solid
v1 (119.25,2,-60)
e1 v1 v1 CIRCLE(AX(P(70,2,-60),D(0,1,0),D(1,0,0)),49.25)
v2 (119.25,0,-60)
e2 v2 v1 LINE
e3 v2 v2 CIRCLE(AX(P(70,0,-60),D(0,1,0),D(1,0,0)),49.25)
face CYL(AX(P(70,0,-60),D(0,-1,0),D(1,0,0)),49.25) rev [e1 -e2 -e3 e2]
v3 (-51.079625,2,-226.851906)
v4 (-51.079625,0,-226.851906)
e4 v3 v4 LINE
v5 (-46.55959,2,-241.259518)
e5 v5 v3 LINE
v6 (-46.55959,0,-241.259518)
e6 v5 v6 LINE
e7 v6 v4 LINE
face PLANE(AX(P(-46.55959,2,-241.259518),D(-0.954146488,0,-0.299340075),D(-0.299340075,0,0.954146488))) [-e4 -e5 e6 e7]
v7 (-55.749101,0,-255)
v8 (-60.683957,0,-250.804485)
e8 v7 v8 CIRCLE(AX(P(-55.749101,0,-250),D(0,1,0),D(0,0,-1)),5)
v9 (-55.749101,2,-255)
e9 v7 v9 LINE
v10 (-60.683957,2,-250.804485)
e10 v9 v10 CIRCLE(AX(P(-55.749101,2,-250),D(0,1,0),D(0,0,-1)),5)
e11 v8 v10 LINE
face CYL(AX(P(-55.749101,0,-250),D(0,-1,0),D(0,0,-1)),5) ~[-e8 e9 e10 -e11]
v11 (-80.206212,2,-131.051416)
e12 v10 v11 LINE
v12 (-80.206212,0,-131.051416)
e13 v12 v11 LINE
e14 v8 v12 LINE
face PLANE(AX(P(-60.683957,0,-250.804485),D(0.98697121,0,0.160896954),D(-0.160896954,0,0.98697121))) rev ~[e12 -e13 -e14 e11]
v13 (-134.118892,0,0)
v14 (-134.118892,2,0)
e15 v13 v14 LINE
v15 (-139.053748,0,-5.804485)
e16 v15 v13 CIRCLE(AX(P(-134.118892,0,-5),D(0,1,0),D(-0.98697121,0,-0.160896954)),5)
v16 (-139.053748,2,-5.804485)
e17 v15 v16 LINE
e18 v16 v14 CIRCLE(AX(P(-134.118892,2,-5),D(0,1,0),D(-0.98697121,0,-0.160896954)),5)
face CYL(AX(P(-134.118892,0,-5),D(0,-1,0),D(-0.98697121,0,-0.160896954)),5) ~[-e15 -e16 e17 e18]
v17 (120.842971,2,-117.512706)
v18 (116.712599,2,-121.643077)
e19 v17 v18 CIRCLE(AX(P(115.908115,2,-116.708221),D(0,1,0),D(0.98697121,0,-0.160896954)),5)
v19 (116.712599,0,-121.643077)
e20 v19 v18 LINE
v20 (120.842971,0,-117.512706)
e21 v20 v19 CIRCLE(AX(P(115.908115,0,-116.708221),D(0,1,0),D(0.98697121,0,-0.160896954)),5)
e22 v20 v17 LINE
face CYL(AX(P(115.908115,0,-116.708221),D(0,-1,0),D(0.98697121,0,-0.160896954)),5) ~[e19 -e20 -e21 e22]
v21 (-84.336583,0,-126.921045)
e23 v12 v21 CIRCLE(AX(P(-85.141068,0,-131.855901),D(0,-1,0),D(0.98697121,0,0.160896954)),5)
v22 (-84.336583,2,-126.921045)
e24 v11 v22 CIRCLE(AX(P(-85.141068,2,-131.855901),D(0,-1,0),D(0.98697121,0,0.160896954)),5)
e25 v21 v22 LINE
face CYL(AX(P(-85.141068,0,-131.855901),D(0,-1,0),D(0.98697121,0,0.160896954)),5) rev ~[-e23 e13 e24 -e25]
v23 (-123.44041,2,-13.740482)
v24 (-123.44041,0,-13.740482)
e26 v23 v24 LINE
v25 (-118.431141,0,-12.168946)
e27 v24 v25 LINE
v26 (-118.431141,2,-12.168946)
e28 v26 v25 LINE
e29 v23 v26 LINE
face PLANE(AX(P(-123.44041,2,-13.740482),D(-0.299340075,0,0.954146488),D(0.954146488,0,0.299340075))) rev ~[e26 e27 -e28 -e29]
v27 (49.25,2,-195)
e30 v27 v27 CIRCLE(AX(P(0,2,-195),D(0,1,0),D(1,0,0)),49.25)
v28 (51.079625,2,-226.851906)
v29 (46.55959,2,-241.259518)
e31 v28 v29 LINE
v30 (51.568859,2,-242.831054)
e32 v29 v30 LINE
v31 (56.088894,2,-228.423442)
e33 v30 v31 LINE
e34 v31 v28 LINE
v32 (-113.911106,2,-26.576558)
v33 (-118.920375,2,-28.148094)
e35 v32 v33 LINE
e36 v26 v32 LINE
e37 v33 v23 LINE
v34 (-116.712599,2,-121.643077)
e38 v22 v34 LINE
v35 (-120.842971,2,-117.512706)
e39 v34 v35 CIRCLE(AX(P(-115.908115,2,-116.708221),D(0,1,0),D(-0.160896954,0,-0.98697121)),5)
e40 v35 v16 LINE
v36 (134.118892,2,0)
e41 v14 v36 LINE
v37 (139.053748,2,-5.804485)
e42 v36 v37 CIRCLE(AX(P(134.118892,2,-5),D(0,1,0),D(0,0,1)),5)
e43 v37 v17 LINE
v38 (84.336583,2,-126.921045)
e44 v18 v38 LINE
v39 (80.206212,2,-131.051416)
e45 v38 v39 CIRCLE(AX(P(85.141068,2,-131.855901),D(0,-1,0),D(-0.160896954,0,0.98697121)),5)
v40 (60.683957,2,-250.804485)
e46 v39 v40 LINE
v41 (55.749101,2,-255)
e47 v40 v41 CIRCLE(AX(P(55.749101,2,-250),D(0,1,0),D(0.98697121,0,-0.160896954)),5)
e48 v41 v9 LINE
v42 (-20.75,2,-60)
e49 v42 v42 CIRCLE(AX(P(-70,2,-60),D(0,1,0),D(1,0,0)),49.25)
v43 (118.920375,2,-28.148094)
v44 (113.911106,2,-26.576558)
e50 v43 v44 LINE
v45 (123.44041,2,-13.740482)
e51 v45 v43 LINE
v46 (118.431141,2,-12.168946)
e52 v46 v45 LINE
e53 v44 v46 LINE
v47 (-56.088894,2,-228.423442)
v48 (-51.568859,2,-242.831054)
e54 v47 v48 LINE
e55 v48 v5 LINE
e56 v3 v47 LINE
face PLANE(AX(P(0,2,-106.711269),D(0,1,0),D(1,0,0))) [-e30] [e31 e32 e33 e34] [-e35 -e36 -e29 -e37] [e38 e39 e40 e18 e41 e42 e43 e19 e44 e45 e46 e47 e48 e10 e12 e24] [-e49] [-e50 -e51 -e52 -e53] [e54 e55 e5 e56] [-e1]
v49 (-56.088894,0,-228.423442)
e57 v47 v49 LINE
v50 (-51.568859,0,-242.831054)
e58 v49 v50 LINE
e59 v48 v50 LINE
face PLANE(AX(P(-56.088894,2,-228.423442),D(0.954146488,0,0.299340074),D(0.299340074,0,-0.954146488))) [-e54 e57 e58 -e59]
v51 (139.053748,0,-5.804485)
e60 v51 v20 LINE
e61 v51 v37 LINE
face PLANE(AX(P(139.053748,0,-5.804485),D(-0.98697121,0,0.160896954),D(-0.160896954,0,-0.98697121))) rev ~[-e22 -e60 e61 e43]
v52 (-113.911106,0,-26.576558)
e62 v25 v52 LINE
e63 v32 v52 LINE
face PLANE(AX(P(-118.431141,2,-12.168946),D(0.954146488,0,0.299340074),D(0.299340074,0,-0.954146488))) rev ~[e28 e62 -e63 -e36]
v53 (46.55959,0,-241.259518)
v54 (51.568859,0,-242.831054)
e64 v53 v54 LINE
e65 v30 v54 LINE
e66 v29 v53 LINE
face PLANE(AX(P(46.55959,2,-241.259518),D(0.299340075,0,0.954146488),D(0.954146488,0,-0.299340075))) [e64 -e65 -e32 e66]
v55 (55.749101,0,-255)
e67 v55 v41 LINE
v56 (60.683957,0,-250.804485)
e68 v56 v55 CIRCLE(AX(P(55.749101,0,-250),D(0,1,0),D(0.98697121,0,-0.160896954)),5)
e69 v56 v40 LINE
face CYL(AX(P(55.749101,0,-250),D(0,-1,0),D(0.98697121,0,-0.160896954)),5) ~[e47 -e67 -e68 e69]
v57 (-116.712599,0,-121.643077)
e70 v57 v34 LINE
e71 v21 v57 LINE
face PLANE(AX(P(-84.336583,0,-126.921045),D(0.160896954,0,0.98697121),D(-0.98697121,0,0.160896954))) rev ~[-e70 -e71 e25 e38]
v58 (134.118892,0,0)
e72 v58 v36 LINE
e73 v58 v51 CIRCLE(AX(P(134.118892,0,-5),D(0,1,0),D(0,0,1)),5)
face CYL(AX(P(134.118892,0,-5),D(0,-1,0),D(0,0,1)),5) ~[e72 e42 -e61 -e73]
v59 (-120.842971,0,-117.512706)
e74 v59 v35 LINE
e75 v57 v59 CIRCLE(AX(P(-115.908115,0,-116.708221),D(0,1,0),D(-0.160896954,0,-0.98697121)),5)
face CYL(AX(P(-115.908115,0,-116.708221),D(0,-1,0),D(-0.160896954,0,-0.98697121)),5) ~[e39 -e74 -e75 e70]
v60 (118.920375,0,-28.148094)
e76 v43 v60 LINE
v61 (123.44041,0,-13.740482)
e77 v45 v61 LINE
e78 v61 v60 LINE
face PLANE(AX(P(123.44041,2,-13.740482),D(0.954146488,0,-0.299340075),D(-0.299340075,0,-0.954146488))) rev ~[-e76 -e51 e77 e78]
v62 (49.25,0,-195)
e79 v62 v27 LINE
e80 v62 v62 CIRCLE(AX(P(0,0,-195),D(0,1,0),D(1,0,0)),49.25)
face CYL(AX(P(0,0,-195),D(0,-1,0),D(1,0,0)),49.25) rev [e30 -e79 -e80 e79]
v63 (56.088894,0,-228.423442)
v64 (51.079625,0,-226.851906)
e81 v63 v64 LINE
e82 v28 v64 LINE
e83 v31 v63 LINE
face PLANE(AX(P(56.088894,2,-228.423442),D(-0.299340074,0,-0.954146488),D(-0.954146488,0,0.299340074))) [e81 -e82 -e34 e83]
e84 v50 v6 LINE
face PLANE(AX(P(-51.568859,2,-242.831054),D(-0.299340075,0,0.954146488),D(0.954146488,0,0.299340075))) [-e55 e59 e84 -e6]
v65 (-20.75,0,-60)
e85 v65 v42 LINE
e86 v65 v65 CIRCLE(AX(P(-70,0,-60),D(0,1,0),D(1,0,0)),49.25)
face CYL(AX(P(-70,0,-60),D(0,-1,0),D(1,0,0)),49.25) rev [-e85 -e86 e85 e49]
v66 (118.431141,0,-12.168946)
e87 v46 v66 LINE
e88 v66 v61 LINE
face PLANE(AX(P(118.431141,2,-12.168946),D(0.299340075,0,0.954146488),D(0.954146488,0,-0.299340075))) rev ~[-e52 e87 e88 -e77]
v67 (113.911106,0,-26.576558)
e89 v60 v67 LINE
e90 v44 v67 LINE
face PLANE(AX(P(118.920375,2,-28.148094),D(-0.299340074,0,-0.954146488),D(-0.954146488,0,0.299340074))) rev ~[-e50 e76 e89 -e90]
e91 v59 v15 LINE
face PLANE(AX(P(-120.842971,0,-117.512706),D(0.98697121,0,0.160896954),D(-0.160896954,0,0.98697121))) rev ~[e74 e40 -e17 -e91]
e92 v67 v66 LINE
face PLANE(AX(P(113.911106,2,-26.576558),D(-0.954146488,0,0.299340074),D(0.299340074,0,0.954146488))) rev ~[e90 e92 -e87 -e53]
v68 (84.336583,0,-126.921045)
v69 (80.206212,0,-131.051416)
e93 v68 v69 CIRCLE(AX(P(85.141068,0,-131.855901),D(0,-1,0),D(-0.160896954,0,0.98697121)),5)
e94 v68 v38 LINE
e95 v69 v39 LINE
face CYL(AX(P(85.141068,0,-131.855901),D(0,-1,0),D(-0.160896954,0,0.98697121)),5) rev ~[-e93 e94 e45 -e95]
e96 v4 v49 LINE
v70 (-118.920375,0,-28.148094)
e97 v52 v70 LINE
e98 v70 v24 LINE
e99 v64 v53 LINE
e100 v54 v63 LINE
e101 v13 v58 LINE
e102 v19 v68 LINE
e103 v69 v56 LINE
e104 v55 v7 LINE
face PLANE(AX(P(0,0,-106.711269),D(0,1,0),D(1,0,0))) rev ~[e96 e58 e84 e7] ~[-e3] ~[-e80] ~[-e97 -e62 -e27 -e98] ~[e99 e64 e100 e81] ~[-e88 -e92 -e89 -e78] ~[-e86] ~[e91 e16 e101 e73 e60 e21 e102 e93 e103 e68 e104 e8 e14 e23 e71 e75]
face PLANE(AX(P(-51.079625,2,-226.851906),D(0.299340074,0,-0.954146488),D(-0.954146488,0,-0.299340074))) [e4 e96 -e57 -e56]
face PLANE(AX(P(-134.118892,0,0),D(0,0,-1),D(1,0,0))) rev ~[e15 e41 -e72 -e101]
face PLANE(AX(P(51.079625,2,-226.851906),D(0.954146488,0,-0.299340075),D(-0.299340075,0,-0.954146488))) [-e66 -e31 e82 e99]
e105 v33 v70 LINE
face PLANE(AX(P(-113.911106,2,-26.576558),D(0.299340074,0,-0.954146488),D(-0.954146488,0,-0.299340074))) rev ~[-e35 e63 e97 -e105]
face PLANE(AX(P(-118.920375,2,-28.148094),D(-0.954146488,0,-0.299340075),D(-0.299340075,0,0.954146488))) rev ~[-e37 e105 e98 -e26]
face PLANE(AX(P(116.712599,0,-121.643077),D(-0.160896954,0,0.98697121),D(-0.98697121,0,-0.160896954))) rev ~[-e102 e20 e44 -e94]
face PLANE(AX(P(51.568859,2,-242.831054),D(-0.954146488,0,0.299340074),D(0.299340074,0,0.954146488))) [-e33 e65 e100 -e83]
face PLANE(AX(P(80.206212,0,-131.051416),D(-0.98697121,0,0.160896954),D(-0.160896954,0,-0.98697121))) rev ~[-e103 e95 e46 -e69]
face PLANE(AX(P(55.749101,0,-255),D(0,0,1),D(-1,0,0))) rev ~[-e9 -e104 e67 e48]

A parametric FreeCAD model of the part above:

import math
import FreeCAD as App
import Part
import Sketcher

V = App.Vector


def add_polygon(sketch, points):
    """Adds a closed chain of lines whose ends are joined by coincident constraints."""
    first, n = sketch.GeometryCount, len(points)
    for a, b in zip(points, points[1:] + points[:1]):
        sketch.addGeometry(Part.LineSegment(App.Vector(*a, 0), App.Vector(*b, 0)), False)
    for i in range(n):
        sketch.addConstraint(Sketcher.Constraint("Coincident", first + i, 2, first + (i + 1) % n, 1))

doc = App.newDocument("Part")
body = doc.addObject("PartDesign::Body", "Body")

sketch1 = doc.addObject("Sketcher::SketchObject", "Sketch")
body.addObject(sketch1)
sketch1.AttachmentSupport = (doc.XZ_Plane, [""])
sketch1.MapMode = "FlatFace"
sketch1.addGeometry([
    Part.LineSegment(V(-134.1, 0, 0), V(134.1, 0, 0)),
    Part.ArcOfCircle(Part.Circle(V(134.1, -5, 0), V(0, 0, 1), 5), math.radians(-9), math.radians(90)),
    Part.LineSegment(V(139.1, -5.8, 0), V(120.8, -117.5, 0)),
    Part.ArcOfCircle(Part.Circle(V(115.9, -116.7, 0), V(0, 0, 1), 5), math.radians(-81), math.radians(-9)),
    Part.LineSegment(V(116.7, -121.6, 0), V(84.3, -126.9, 0)),
    Part.ArcOfCircle(Part.Circle(V(85.1, -131.9, 0), V(0, 0, 1), 5), math.radians(99), math.radians(171)),
    Part.LineSegment(V(80.2, -131.1, 0), V(60.7, -250.8, 0)),
    Part.ArcOfCircle(Part.Circle(V(55.7, -250, 0), V(0, 0, 1), 5), math.radians(-90), math.radians(-9)),
    Part.LineSegment(V(55.7, -255, 0), V(-55.7, -255, 0)),
    Part.ArcOfCircle(Part.Circle(V(-55.7, -250, 0), V(0, 0, 1), 5), math.radians(-171), math.radians(-90)),
    Part.LineSegment(V(-60.7, -250.8, 0), V(-80.2, -131.1, 0)),
    Part.ArcOfCircle(Part.Circle(V(-85.1, -131.9, 0), V(0, 0, 1), 5), math.radians(9), math.radians(81)),
    Part.LineSegment(V(-84.3, -126.9, 0), V(-116.7, -121.6, 0)),
    Part.ArcOfCircle(Part.Circle(V(-115.9, -116.7, 0), V(0, 0, 1), 5), math.radians(-171), math.radians(-99)),
    Part.LineSegment(V(-120.8, -117.5, 0), V(-139.1, -5.8, 0)),
    Part.ArcOfCircle(Part.Circle(V(-134.1, -5, 0), V(0, 0, 1), 5), math.radians(90), math.radians(189)),
    Part.Circle(V(-70, -60, 0), V(0, 0, 1), 49.2),
    Part.Circle(V(70, -60, 0), V(0, 0, 1), 49.2),
    Part.Circle(V(0, -195, 0), V(0, 0, 1), 49.2),
], False)
sketch1.addConstraint([
    Sketcher.Constraint("Tangent", 0, 2, 1, 2),
    Sketcher.Constraint("Tangent", 1, 1, 2, 1),
    Sketcher.Constraint("Tangent", 2, 2, 3, 2),
    Sketcher.Constraint("Tangent", 3, 1, 4, 1),
    Sketcher.Constraint("Tangent", 4, 2, 5, 1),
    Sketcher.Constraint("Tangent", 5, 2, 6, 1),
    Sketcher.Constraint("Tangent", 6, 2, 7, 2),
    Sketcher.Constraint("Tangent", 7, 1, 8, 1),
    Sketcher.Constraint("Tangent", 8, 2, 9, 2),
    Sketcher.Constraint("Tangent", 9, 1, 10, 1),
    Sketcher.Constraint("Tangent", 10, 2, 11, 1),
    Sketcher.Constraint("Tangent", 11, 2, 12, 1),
    Sketcher.Constraint("Tangent", 12, 2, 13, 2),
    Sketcher.Constraint("Tangent", 13, 1, 14, 1),
    Sketcher.Constraint("Tangent", 14, 2, 15, 2),
    Sketcher.Constraint("Tangent", 15, 1, 0, 1),
    Sketcher.Constraint("Horizontal", 0),
    Sketcher.Constraint("Horizontal", 8),
    Sketcher.Constraint("Equal", 1, 3),
    Sketcher.Constraint("Equal", 3, 5),
    Sketcher.Constraint("Equal", 5, 7),
    Sketcher.Constraint("Equal", 7, 9),
    Sketcher.Constraint("Equal", 9, 11),
    Sketcher.Constraint("Equal", 11, 13),
    Sketcher.Constraint("Equal", 13, 15),
    Sketcher.Constraint("Equal", 16, 17),
    Sketcher.Constraint("Equal", 17, 18),
    Sketcher.Constraint("Symmetric", 0, 2, 15, 1, -1, 1),
    Sketcher.Constraint("Symmetric", 5, 3, 11, 3, -2),
    Sketcher.Constraint("Symmetric", 3, 3, 13, 3, -2),
    Sketcher.Constraint("Symmetric", 16, 3, 17, 3, -2),
    Sketcher.Constraint("PointOnObject", 18, 3, -2),
    Sketcher.Constraint("Parallel", 2, 6),
    Sketcher.Constraint("Perpendicular", 4, 10),
    Sketcher.Constraint("Perpendicular", 6, 12),
    Sketcher.Constraint("Radius", 1, 5.0),
    Sketcher.Constraint("Diameter", 16, 98.5),
    Sketcher.Constraint("DistanceY", 7, 3, -1, 1, 250.0),
    Sketcher.Constraint("DistanceX", 16, 3, -1, 1, 70.0),
    Sketcher.Constraint("DistanceY", 16, 3, -1, 1, 60.0),
    Sketcher.Constraint("DistanceY", 18, 3, -1, 1, 195.0),
    Sketcher.Constraint("DistanceX", 8, 2, 8, 1, 111.498201),
    Sketcher.Constraint("DistanceY", 5, 3, -1, 1, 131.855901),
    Sketcher.Constraint("DistanceX", -1, 1, 3, 1, 116.712599),
    Sketcher.Constraint("DistanceX", 0, 1, 0, 2, 268.237783),
])
pad1 = doc.addObject("PartDesign::Pad", "Pad")
body.addObject(pad1)
pad1.Profile = sketch1
pad1.Length = 2
pad1.Reversed = True

sketch2 = doc.addObject("Sketcher::SketchObject", "Sketch001")
body.addObject(sketch2)
sketch2.AttachmentSupport = (doc.XZ_Plane, [""])
sketch2.MapMode = "FlatFace"
sketch2.AttachmentOffset = App.Placement(V(0, 0, -2), App.Rotation())
add_polygon(sketch2, [(-52, -243), (-56, -228), (-51, -227), (-47, -241)])
add_polygon(sketch2, [(-118, -12), (-114, -27), (-119, -28), (-123, -14)])
add_polygon(sketch2, [(123, -14), (119, -28), (114, -27), (118, -12)])
add_polygon(sketch2, [(47, -241), (51, -227), (56, -228), (52, -243)])
sketch2.addConstraint([
    Sketcher.Constraint("Symmetric", 5, 2, 8, 2, -2),
    Sketcher.Constraint("Symmetric", 4, 2, 9, 2, -2),
    Sketcher.Constraint("Symmetric", 7, 2, 10, 2, -2),
    Sketcher.Constraint("Symmetric", 6, 2, 11, 2, -2),
    Sketcher.Constraint("Symmetric", 1, 2, 12, 2, -2),
    Sketcher.Constraint("Symmetric", 0, 2, 13, 2, -2),
    Sketcher.Constraint("Symmetric", 3, 2, 14, 2, -2),
    Sketcher.Constraint("Symmetric", 2, 2, 15, 2, -2),
    Sketcher.Constraint("Perpendicular", 0, 1),
    Sketcher.Constraint("Perpendicular", 1, 2),
    Sketcher.Constraint("Perpendicular", 2, 3),
    Sketcher.Constraint("Perpendicular", 3, 4),
    Sketcher.Constraint("Perpendicular", 4, 5),
    Sketcher.Constraint("Perpendicular", 5, 6),
    Sketcher.Constraint("Perpendicular", 6, 7),
    Sketcher.Constraint("Equal", 2, 4),
    Sketcher.Constraint("Equal", 3, 5),
    Sketcher.Constraint("DistanceX", 1, 2, 8, 2, 170.0),
    Sketcher.Constraint("Distance", 0, 15.1),
    Sketcher.Constraint("Distance", 1, 5.25),
    Sketcher.Constraint("DistanceY", 0, 2, -1, 1, 228.423442),
    Sketcher.Constraint("DistanceX", 2, 2, -1, 1, 46.55959),
    Sketcher.Constraint("DistanceY", 2, 2, -1, 1, 241.259518),
    Sketcher.Constraint("DistanceY", 4, 2, -1, 1, 26.576558),
])
pocket1 = doc.addObject("PartDesign::Pocket", "Pocket")
body.addObject(pocket1)
pocket1.Profile = sketch2
pocket1.Length = 5
pocket1.Reversed = True

doc.recompute()
